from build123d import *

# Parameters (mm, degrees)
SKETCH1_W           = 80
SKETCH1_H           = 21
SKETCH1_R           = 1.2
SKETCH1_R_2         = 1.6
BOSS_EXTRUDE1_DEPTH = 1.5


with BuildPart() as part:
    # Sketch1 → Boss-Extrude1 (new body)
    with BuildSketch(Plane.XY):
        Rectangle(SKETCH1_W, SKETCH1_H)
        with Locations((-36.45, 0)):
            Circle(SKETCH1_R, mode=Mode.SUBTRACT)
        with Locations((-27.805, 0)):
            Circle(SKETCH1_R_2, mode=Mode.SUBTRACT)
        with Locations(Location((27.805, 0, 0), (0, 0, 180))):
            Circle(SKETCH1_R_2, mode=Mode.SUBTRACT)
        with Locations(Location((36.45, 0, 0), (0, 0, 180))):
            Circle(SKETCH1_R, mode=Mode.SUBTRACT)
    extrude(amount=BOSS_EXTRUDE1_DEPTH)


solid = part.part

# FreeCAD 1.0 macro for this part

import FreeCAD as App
import Part
import Sketcher
Q = App.Units.Quantity

doc = App.newDocument("Part")
body = doc.addObject("PartDesign::Body", "Body")

# Sketch on XY plane
sketch1 = body.newObject("Sketcher::SketchObject", "Sketch")
sketch1.AttachmentSupport = (doc.getObject("XY_Plane"), [""])
sketch1.MapMode = "FlatFace"
sketch1.addGeometry([
    Part.LineSegment(App.Vector(-40, 10.5, 0), App.Vector(-40, -10.5, 0)),  # 0
    Part.LineSegment(App.Vector(-40, -10.5, 0), App.Vector(40, -10.5, 0)),  # 1
    Part.LineSegment(App.Vector(40, -10.5, 0), App.Vector(40, 10.5, 0)),  # 2
    Part.LineSegment(App.Vector(40, 10.5, 0), App.Vector(-40, 10.5, 0)),  # 3
    Part.Circle(App.Vector(-36.5, 0, 0), App.Vector(0, 0, 1), 1.2),  # 4
    Part.Circle(App.Vector(-27.8, 0, 0), App.Vector(0, 0, 1), 1.6),  # 5
    Part.Circle(App.Vector(27.8, 0, 0), App.Vector(0, 0, 1), 1.6),  # 6
    Part.Circle(App.Vector(36.5, 0, 0), App.Vector(0, 0, 1), 1.2),  # 7
], False)
sketch1.addConstraint([
    Sketcher.Constraint("Coincident", 0, 2, 1, 1),
    Sketcher.Constraint("Coincident", 1, 2, 2, 1),
    Sketcher.Constraint("Coincident", 2, 2, 3, 1),
    Sketcher.Constraint("Coincident", 3, 2, 0, 1),
    Sketcher.Constraint("Vertical", 0),
    Sketcher.Constraint("Horizontal", 1),
    Sketcher.Constraint("Vertical", 2),
    Sketcher.Constraint("Horizontal", 3),
    Sketcher.Constraint("Equal", 5, 6),
    Sketcher.Constraint("Equal", 4, 7),
    Sketcher.Constraint("Symmetric", 5, 3, 6, 3, -1, 1),
    Sketcher.Constraint("Symmetric", 4, 3, 7, 3, -1, 1),
    Sketcher.Constraint("Symmetric", 0, 2, 2, 2, -1, 1),
    Sketcher.Constraint("PointOnObject", 4, 3, -1),
    Sketcher.Constraint("PointOnObject", 5, 3, -1),
    Sketcher.Constraint("Diameter", 4, Q("2.4 mm")),
    Sketcher.Constraint("Diameter", 5, Q("3.2 mm")),
    Sketcher.Constraint("DistanceX", 1, 1, 1, 2, Q("80 mm")),
    Sketcher.Constraint("DistanceY", 0, 2, 0, 1, Q("21 mm")),
    Sketcher.Constraint("DistanceX", 4, 3, 7, 3, Q("72.9 mm")),
    Sketcher.Constraint("DistanceX", 5, 3, 6, 3, Q("55.61 mm")),
])
pad1 = body.newObject("PartDesign::Pad", "Pad")
pad1.Profile = sketch1
pad1.Length = 1.5

doc.recompute()
